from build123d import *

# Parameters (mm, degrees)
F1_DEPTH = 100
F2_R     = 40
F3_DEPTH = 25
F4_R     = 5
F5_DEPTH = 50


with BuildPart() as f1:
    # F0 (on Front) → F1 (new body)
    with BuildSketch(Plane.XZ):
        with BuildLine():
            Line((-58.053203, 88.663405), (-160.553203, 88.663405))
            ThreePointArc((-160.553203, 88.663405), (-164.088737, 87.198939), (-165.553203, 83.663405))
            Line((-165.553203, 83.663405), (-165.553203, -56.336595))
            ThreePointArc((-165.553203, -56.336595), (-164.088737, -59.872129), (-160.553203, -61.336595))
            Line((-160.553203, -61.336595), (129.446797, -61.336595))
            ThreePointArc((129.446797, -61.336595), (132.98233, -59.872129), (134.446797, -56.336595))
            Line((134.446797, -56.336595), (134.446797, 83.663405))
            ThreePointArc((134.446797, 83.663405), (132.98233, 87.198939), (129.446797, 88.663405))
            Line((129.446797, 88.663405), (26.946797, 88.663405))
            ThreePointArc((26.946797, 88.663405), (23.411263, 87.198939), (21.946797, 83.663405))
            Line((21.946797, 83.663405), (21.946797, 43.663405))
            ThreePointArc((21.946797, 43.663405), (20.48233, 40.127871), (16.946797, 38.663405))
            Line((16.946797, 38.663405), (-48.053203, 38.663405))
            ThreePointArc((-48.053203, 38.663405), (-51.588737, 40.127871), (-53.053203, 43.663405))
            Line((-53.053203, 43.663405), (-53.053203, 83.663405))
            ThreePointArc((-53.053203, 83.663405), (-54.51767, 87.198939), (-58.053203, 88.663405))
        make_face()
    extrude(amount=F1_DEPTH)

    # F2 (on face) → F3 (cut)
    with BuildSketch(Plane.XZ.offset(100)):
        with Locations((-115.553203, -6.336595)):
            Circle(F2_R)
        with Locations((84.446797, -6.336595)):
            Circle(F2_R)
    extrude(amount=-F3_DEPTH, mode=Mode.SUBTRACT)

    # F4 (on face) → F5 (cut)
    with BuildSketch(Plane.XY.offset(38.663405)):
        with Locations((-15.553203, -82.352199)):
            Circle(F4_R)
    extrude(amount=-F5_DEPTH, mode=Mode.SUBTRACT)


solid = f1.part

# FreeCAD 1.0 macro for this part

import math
import FreeCAD as App
import Part
import Sketcher

doc = App.newDocument("Part")
body = doc.addObject("PartDesign::Body", "Body")

sketch1 = doc.addObject("Sketcher::SketchObject", "Sketch")
body.addObject(sketch1)
sketch1.AttachmentSupport = (doc.XZ_Plane, [""])
sketch1.MapMode = "FlatFace"
sketch1.addGeometry([
    Part.LineSegment(App.Vector(-58.1, 88.7, 0), App.Vector(-160.6, 88.7, 0)),
    Part.ArcOfCircle(Part.Circle(App.Vector(-160.6, 83.7, 0), App.Vector(0, 0, 1), 5), math.radians(90), math.radians(180)),
    Part.LineSegment(App.Vector(-165.6, 83.7, 0), App.Vector(-165.6, -56.3, 0)),
    Part.ArcOfCircle(Part.Circle(App.Vector(-160.6, -56.3, 0), App.Vector(0, 0, 1), 5), math.radians(180), math.radians(270)),
    Part.LineSegment(App.Vector(-160.6, -61.3, 0), App.Vector(129.4, -61.3, 0)),
    Part.ArcOfCircle(Part.Circle(App.Vector(129.4, -56.3, 0), App.Vector(0, 0, 1), 5), math.radians(-90), math.radians(0)),
    Part.LineSegment(App.Vector(134.4, -56.3, 0), App.Vector(134.4, 83.7, 0)),
    Part.ArcOfCircle(Part.Circle(App.Vector(129.4, 83.7, 0), App.Vector(0, 0, 1), 5), math.radians(0), math.radians(90)),
    Part.LineSegment(App.Vector(129.4, 88.7, 0), App.Vector(26.9, 88.7, 0)),
    Part.ArcOfCircle(Part.Circle(App.Vector(26.9, 83.7, 0), App.Vector(0, 0, 1), 5), math.radians(90), math.radians(180)),
    Part.LineSegment(App.Vector(21.9, 83.7, 0), App.Vector(21.9, 43.7, 0)),
    Part.ArcOfCircle(Part.Circle(App.Vector(16.9, 43.7, 0), App.Vector(0, 0, 1), 5), math.radians(-90), math.radians(0)),
    Part.LineSegment(App.Vector(16.9, 38.7, 0), App.Vector(-48.1, 38.7, 0)),
    Part.ArcOfCircle(Part.Circle(App.Vector(-48.1, 43.7, 0), App.Vector(0, 0, 1), 5), math.radians(180), math.radians(270)),
    Part.LineSegment(App.Vector(-53.1, 43.7, 0), App.Vector(-53.1, 83.7, 0)),
    Part.ArcOfCircle(Part.Circle(App.Vector(-58.1, 83.7, 0), App.Vector(0, 0, 1), 5), math.radians(0), math.radians(90)),
], False)
sketch1.addConstraint([
    Sketcher.Constraint("Tangent", 0, 2, 1, 1),
    Sketcher.Constraint("Tangent", 1, 2, 2, 1),
    Sketcher.Constraint("Tangent", 2, 2, 3, 1),
    Sketcher.Constraint("Tangent", 3, 2, 4, 1),
    Sketcher.Constraint("Tangent", 4, 2, 5, 1),
    Sketcher.Constraint("Tangent", 5, 2, 6, 1),
    Sketcher.Constraint("Tangent", 6, 2, 7, 1),
    Sketcher.Constraint("Tangent", 7, 2, 8, 1),
    Sketcher.Constraint("Tangent", 8, 2, 9, 1),
    Sketcher.Constraint("Tangent", 9, 2, 10, 1),
    Sketcher.Constraint("Tangent", 10, 2, 11, 2),
    Sketcher.Constraint("Tangent", 11, 1, 12, 1),
    Sketcher.Constraint("Tangent", 12, 2, 13, 2),
    Sketcher.Constraint("Tangent", 13, 1, 14, 1),
    Sketcher.Constraint("Tangent", 14, 2, 15, 1),
    Sketcher.Constraint("Tangent", 15, 2, 0, 1),
    Sketcher.Constraint("Horizontal", 0),
    Sketcher.Constraint("Vertical", 2),
    Sketcher.Constraint("Horizontal", 4),
    Sketcher.Constraint("Vertical", 6),
    Sketcher.Constraint("Horizontal", 8),
    Sketcher.Constraint("Vertical", 10),
    Sketcher.Constraint("Horizontal", 12),
    Sketcher.Constraint("Vertical", 14),
    Sketcher.Constraint("Equal", 1, 3),
    Sketcher.Constraint("Equal", 3, 5),
    Sketcher.Constraint("Equal", 5, 7),
    Sketcher.Constraint("Equal", 7, 9),
    Sketcher.Constraint("Equal", 9, 11),
    Sketcher.Constraint("Equal", 11, 13),
    Sketcher.Constraint("Equal", 13, 15),
    Sketcher.Constraint("Horizontal", 1, 3, 7, 3),
    Sketcher.Constraint("Equal", 0, 8),
    Sketcher.Constraint("Radius", 1, 5.0),
    Sketcher.Constraint("DistanceX", 4, 1, 4, 2, 290.0),
    Sketcher.Constraint("DistanceX", 12, 2, 12, 1, 65.0),
    Sketcher.Constraint("DistanceY", 2, 2, 2, 1, 140.0),
    Sketcher.Constraint("DistanceY", 10, 2, 10, 1, 40.0),
    Sketcher.Constraint("DistanceX", 1, 3, -1, 1, 160.553203),
    Sketcher.Constraint("DistanceY", -1, 1, 1, 3, 83.663405),
])
pad1 = doc.addObject("PartDesign::Pad", "Pad")
body.addObject(pad1)
pad1.Profile = sketch1
pad1.Length = 100

sketch2 = doc.addObject("Sketcher::SketchObject", "Sketch001")
body.addObject(sketch2)
sketch2.AttachmentSupport = (doc.XZ_Plane, [""])
sketch2.MapMode = "FlatFace"
sketch2.AttachmentOffset = App.Placement(App.Vector(0, 0, 100), App.Rotation())
sketch2.addGeometry([
    Part.Circle(App.Vector(-116, -6, 0), App.Vector(0, 0, 1), 40),
    Part.Circle(App.Vector(84, -6, 0), App.Vector(0, 0, 1), 40),
], False)
sketch2.addConstraint([
    Sketcher.Constraint("Equal", 0, 1),
    Sketcher.Constraint("Horizontal", 0, 3, 1, 3),
    Sketcher.Constraint("Diameter", 0, 80.0),
    Sketcher.Constraint("DistanceX", 0, 3, 1, 3, 200.0),
    Sketcher.Constraint("DistanceX", 0, 3, -1, 1, 115.553203),
    Sketcher.Constraint("DistanceY", 0, 3, -1, 1, 6.336595),
])
pocket1 = doc.addObject("PartDesign::Pocket", "Pocket")
body.addObject(pocket1)
pocket1.Profile = sketch2
pocket1.Length = 25

sketch3 = doc.addObject("Sketcher::SketchObject", "Sketch002")
body.addObject(sketch3)
sketch3.AttachmentSupport = (doc.XY_Plane, [""])
sketch3.MapMode = "FlatFace"
sketch3.AttachmentOffset = App.Placement(App.Vector(0, 0, 38.663405), App.Rotation())
sketch3.addGeometry(Part.Circle(App.Vector(-16, -82, 0), App.Vector(0, 0, 1), 5), False)
sketch3.addConstraint([
    Sketcher.Constraint("Diameter", 0, 10.0),
    Sketcher.Constraint("DistanceY", 0, 3, -1, 1, 82.352199),
    Sketcher.Constraint("DistanceX", 0, 3, -1, 1, 15.553203),
])
pocket2 = doc.addObject("PartDesign::Pocket", "Pocket001")
body.addObject(pocket2)
pocket2.Profile = sketch3
pocket2.Length = 50

doc.recompute()
